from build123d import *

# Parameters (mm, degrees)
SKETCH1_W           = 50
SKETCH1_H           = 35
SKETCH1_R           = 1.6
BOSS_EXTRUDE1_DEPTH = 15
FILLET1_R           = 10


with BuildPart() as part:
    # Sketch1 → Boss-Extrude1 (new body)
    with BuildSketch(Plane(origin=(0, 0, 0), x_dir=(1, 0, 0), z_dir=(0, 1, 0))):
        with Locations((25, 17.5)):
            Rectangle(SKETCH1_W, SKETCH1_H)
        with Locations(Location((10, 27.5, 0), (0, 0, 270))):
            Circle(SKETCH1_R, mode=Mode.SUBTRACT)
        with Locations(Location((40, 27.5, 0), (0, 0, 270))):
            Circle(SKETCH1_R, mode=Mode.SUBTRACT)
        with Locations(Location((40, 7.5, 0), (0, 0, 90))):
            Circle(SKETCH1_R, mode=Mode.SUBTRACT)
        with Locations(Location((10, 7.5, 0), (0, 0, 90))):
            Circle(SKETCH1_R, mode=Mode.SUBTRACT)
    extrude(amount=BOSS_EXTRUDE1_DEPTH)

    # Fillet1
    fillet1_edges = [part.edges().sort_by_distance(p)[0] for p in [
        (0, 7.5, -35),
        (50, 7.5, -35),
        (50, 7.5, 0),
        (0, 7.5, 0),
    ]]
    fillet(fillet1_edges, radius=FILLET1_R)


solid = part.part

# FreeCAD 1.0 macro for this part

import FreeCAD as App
import Part
import Sketcher

V = App.Vector
Q = App.Units.Quantity


def edges_at(feature, points):
    """Names of the edges that pass closest to the given points."""
    edges = feature.Shape.Edges
    near = lambda p: min(range(len(edges)), key=lambda i: edges[i].distToShape(Part.Vertex(*p))[0])
    return sorted({f"Edge{near(p) + 1}" for p in points})

doc = App.newDocument("Part")
body = doc.addObject("PartDesign::Body", "Body")

# Sketch on XZ plane
sketch1 = body.newObject("Sketcher::SketchObject", "Sketch")
sketch1.AttachmentSupport = (doc.getObject("XZ_Plane"), [""])
sketch1.MapMode = "FlatFace"
sketch1.addGeometry([
    Part.LineSegment(V(0, -35, 0), V(0, 0, 0)),  # 0
    Part.LineSegment(V(0, 0, 0), V(50, 0, 0)),  # 1
    Part.LineSegment(V(50, 0, 0), V(50, -35, 0)),  # 2
    Part.LineSegment(V(50, -35, 0), V(0, -35, 0)),  # 3
    Part.Circle(V(10, -7.5, 0), V(0, 0, 1), 1.6),  # 4
    Part.Circle(V(40, -7.5, 0), V(0, 0, 1), 1.6),  # 5
    Part.Circle(V(10, -27.5, 0), V(0, 0, 1), 1.6),  # 6
    Part.Circle(V(40, -27.5, 0), V(0, 0, 1), 1.6),  # 7
], False)
sketch1.addConstraint([
    Sketcher.Constraint("Coincident", 0, 2, 1, 1),
    Sketcher.Constraint("Coincident", 1, 2, 2, 1),
    Sketcher.Constraint("Coincident", 2, 2, 3, 1),
    Sketcher.Constraint("Coincident", 3, 2, 0, 1),
    Sketcher.Constraint("Vertical", 0),
    Sketcher.Constraint("Horizontal", 1),
    Sketcher.Constraint("Vertical", 2),
    Sketcher.Constraint("Horizontal", 3),
    Sketcher.Constraint("Coincident", 0, 2, -1, 1),
    Sketcher.Constraint("Equal", 4, 5),
    Sketcher.Constraint("Equal", 5, 6),
    Sketcher.Constraint("Equal", 6, 7),
    Sketcher.Constraint("Horizontal", 4, 3, 5, 3),
    Sketcher.Constraint("Horizontal", 6, 3, 7, 3),
    Sketcher.Constraint("Vertical", 4, 3, 6, 3),
    Sketcher.Constraint("Vertical", 5, 3, 7, 3),
    Sketcher.Constraint("Diameter", 4, Q("3.2 mm")),
    Sketcher.Constraint("DistanceX", 1, 1, 1, 2, Q("50 mm")),
    Sketcher.Constraint("DistanceY", 0, 1, 0, 2, Q("35 mm")),
    Sketcher.Constraint("DistanceX", -1, 1, 4, 3, Q("10 mm")),
    Sketcher.Constraint("DistanceX", -1, 1, 5, 3, Q("40 mm")),
    Sketcher.Constraint("DistanceY", 6, 3, 4, 3, Q("20 mm")),
    Sketcher.Constraint("DistanceY", 4, 3, -1, 1, Q("7.5 mm")),
])
pad1 = body.newObject("PartDesign::Pad", "Pad")
pad1.Profile = sketch1
pad1.Length = 15
pad1.Reversed = True
doc.recompute()

fillet = body.newObject("PartDesign::Fillet", "Fillet")
fillet.Base = (pad1, edges_at(pad1, [
    (0, 7.5, -35),
    (50, 7.5, -35),
    (50, 7.5, 0),
    (0, 7.5, 0),
]))
fillet.Radius = 10

doc.recompute()
